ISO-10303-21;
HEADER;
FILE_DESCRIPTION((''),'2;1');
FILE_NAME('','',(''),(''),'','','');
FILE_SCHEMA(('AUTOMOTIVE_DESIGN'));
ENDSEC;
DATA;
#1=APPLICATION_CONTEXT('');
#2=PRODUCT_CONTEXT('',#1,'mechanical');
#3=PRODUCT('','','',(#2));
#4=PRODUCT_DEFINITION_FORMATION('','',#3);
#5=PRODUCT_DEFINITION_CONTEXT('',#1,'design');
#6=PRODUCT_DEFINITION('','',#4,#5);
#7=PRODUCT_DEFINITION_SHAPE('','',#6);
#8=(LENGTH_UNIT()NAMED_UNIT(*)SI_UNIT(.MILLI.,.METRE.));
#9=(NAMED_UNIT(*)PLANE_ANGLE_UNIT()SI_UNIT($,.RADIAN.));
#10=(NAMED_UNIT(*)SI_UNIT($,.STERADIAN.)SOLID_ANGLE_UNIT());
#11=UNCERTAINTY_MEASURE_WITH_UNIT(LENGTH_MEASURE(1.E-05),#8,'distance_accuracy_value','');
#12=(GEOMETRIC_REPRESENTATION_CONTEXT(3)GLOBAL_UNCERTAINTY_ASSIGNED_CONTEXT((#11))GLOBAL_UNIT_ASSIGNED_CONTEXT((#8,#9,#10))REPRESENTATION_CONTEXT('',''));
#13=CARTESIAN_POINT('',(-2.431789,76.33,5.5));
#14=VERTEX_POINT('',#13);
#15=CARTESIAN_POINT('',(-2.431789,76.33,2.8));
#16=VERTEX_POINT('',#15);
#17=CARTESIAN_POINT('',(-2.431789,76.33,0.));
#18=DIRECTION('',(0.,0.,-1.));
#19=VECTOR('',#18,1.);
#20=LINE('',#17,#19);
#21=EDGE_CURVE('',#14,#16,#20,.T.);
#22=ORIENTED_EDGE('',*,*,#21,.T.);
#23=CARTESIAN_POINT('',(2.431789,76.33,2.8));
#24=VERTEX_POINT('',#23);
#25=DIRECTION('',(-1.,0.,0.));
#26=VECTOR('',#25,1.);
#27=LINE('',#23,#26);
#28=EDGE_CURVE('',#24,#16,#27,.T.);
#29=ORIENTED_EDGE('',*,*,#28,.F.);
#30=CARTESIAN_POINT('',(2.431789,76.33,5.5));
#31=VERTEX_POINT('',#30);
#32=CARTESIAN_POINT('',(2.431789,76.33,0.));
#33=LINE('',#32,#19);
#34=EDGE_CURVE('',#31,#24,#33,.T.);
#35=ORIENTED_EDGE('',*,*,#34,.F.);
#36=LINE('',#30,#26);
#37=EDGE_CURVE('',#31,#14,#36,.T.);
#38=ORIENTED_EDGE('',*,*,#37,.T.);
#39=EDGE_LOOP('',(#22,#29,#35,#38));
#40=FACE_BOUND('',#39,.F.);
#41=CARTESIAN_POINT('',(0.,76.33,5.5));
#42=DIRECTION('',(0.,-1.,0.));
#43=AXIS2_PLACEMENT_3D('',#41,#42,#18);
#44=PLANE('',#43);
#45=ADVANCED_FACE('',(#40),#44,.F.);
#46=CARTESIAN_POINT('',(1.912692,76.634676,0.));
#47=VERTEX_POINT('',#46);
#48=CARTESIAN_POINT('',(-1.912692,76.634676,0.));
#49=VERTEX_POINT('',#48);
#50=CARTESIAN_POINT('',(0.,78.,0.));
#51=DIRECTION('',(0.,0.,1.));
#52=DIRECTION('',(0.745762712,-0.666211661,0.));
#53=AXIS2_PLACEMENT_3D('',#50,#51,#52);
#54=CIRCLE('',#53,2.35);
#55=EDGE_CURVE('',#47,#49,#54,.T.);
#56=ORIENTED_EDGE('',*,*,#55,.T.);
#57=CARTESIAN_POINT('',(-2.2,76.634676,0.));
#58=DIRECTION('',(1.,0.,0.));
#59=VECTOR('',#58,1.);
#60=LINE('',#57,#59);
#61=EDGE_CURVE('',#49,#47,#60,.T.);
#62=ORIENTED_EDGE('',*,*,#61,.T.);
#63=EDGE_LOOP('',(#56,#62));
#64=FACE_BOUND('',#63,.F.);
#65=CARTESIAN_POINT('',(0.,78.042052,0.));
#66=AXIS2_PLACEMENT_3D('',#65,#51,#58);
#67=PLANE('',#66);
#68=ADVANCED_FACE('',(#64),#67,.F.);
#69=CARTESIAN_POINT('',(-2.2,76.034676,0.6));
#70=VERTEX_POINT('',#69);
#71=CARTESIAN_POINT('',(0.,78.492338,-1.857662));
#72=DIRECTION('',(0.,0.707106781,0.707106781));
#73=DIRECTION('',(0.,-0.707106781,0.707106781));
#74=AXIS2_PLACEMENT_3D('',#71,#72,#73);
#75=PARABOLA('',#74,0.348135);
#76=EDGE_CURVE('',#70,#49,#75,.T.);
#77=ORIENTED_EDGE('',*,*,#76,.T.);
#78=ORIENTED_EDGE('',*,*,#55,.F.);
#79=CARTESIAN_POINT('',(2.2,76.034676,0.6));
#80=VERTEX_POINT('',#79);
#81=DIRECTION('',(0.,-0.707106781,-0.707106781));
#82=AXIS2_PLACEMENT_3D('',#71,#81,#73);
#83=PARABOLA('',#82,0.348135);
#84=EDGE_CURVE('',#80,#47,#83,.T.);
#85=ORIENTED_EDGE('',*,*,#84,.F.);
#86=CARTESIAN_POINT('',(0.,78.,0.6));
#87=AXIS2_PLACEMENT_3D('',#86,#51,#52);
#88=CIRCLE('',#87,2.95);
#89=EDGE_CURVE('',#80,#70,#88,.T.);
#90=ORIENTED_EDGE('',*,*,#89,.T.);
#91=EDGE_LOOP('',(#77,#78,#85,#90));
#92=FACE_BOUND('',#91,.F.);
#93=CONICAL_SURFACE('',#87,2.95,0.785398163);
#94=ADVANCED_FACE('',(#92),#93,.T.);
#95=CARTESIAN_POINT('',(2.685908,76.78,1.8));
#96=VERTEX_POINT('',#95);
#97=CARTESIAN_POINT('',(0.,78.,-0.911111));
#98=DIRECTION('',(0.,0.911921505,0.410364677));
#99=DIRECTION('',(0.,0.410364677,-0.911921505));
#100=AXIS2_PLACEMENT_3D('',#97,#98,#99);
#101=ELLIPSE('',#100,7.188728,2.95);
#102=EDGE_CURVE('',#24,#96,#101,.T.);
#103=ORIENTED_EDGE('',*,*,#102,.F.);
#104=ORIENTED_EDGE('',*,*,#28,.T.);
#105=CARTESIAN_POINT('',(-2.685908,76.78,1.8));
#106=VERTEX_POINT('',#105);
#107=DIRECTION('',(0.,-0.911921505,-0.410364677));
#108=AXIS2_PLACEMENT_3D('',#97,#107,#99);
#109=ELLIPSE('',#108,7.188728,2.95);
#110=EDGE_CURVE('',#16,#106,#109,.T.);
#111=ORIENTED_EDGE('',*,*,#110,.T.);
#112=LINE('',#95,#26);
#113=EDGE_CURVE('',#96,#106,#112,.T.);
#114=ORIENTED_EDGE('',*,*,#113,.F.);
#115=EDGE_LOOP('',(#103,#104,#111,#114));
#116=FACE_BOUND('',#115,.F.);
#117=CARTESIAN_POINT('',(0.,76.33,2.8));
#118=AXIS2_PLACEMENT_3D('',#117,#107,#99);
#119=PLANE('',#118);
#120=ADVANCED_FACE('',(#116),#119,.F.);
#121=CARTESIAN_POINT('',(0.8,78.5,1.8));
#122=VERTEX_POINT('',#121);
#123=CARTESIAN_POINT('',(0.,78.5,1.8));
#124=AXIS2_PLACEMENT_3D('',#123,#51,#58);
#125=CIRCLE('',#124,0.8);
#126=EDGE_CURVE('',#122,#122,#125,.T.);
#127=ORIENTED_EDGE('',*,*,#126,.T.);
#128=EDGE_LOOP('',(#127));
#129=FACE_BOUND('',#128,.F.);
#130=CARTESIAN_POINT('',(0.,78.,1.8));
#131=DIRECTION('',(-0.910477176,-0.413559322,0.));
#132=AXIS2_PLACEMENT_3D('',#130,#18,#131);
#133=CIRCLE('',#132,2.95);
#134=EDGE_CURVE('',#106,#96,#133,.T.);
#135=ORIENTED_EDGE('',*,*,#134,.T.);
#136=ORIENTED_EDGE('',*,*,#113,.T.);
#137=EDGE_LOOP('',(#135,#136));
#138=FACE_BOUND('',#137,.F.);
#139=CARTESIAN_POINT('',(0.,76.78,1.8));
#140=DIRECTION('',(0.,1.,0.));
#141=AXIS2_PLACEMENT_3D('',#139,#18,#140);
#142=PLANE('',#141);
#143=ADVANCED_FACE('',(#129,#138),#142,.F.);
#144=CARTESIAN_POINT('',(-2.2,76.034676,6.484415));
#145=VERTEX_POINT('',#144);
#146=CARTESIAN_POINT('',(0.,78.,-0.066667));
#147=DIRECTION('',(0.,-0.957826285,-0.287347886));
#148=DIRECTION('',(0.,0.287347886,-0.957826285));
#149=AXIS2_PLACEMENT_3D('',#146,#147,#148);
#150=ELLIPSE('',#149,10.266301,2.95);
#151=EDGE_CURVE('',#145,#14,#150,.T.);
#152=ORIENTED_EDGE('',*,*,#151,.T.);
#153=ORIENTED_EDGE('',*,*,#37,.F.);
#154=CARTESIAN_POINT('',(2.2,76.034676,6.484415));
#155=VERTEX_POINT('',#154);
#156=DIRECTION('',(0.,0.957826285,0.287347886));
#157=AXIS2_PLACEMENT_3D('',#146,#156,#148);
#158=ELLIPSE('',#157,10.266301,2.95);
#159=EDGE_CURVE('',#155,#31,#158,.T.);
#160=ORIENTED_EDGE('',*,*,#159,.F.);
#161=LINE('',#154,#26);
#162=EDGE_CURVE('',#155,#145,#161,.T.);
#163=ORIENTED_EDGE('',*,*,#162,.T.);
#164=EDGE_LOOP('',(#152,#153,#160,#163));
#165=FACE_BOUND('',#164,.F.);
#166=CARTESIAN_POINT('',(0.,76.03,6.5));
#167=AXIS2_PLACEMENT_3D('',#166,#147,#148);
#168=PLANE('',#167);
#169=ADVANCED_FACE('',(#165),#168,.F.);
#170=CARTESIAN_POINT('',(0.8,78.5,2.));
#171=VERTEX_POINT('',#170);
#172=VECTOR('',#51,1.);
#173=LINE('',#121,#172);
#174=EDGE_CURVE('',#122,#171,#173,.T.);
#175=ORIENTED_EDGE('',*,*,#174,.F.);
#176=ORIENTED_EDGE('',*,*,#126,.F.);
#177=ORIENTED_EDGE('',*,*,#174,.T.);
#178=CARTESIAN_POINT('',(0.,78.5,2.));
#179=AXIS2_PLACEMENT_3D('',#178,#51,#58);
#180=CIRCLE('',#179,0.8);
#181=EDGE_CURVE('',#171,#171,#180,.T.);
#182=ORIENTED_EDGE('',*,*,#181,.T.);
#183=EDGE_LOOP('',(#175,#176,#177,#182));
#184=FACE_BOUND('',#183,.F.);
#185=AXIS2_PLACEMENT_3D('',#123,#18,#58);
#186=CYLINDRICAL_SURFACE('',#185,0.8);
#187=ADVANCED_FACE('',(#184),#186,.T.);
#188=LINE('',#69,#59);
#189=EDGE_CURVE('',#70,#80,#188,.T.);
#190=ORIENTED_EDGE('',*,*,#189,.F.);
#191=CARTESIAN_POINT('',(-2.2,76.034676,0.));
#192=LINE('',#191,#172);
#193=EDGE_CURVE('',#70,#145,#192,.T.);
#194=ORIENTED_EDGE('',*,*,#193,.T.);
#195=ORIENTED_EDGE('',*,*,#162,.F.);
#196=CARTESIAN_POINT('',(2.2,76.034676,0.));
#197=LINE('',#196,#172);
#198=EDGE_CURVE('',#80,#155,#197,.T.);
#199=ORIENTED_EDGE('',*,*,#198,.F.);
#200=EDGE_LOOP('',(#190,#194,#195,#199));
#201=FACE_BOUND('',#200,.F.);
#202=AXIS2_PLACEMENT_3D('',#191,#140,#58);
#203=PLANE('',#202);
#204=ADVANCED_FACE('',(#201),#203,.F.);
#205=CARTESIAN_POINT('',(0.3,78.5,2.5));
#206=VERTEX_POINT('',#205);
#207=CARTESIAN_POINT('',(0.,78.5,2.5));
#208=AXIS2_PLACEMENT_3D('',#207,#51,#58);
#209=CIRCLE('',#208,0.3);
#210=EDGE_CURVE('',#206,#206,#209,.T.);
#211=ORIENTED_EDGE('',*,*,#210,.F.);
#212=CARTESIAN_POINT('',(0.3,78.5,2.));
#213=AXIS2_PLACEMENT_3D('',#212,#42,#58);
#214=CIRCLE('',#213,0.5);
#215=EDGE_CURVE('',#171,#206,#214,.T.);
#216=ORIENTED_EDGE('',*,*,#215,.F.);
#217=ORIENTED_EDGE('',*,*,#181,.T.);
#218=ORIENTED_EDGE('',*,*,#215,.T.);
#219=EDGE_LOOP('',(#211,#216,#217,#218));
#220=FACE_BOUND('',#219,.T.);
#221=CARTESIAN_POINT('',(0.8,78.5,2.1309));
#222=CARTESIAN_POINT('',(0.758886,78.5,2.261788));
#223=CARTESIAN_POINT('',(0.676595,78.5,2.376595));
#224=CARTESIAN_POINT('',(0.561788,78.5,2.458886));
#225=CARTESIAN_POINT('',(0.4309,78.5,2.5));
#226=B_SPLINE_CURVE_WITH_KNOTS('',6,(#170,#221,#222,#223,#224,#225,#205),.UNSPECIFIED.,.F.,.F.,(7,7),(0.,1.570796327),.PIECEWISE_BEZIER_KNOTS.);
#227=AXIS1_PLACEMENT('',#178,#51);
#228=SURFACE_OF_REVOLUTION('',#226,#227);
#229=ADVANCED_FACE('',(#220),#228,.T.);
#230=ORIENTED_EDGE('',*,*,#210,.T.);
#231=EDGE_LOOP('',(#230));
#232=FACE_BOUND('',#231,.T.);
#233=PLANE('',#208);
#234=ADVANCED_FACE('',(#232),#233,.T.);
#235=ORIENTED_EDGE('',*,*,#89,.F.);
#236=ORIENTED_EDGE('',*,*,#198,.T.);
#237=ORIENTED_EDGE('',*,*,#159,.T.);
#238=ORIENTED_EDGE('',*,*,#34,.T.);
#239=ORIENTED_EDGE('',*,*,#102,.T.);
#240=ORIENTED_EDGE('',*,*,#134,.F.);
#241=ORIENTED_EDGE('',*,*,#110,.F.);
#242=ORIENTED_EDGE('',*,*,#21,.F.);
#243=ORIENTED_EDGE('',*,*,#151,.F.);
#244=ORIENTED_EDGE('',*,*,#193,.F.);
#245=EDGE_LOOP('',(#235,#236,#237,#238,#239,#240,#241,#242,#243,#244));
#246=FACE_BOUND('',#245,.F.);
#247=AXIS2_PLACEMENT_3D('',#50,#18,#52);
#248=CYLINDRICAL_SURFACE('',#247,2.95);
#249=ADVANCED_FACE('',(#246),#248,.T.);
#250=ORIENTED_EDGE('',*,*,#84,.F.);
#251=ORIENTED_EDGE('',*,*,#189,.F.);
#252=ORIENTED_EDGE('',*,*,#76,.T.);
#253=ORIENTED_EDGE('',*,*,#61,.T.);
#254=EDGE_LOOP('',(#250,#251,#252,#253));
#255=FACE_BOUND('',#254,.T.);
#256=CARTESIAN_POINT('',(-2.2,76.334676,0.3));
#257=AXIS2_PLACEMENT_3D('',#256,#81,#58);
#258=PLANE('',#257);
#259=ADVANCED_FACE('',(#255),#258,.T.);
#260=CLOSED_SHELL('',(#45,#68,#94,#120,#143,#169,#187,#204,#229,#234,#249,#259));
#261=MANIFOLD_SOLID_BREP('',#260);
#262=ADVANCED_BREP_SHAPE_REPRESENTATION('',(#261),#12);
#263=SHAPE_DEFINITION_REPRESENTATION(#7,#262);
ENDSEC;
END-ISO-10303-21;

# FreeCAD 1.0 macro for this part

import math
import FreeCAD as App
import Part
import Sketcher


def edges_at(feature, points):
    """Names of the edges that pass closest to the given points."""
    edges = feature.Shape.Edges
    near = lambda p: min(range(len(edges)), key=lambda i: edges[i].distToShape(Part.Vertex(*p))[0])
    return sorted({f"Edge{near(p) + 1}" for p in points})

doc = App.newDocument("Part")
body = doc.addObject("PartDesign::Body", "Body")

sketch1 = body.newObject("Sketcher::SketchObject", "Sketch")
sketch1.AttachmentSupport = (doc.getObject("XY_Plane"), [""])
sketch1.MapMode = "FlatFace"
sketch1.addGeometry([
    Part.ArcOfCircle(Part.Circle(App.Vector(0, 0, 0), App.Vector(0, 0, 1), 3), math.radians(-42), math.radians(222)),
    Part.LineSegment(App.Vector(-2.2, -2, 0), App.Vector(2.2, -2, 0)),
], False)
sketch1.addConstraint([
    Sketcher.Constraint("Coincident", 0, 1, 1, 2),
    Sketcher.Constraint("Coincident", 1, 1, 0, 2),
    Sketcher.Constraint("Horizontal", 1),
    Sketcher.Constraint("Coincident", 0, 3, -1, 1),
    Sketcher.Constraint("Radius", 0, 2.95),
    Sketcher.Constraint("DistanceX", 1, 1, 1, 2, 4.4),
])
pad1 = body.newObject("PartDesign::Pad", "Pad")
pad1.Profile = sketch1
pad1.Length = 6.5

sketch2 = body.newObject("Sketcher::SketchObject", "Sketch001")
sketch2.AttachmentSupport = (doc.getObject("YZ_Plane"), [""])
sketch2.MapMode = "FlatFace"
sketch2.addGeometry([
    Part.LineSegment(App.Vector(-2, 6.5, 0), App.Vector(-1.7, 5.5, 0)),
    Part.LineSegment(App.Vector(-1.7, 5.5, 0), App.Vector(-1.7, 2.8, 0)),
    Part.LineSegment(App.Vector(-1.7, 2.8, 0), App.Vector(-1.2, 1.8, 0)),
    Part.LineSegment(App.Vector(-1.2, 1.8, 0), App.Vector(4, 1.8, 0)),
    Part.LineSegment(App.Vector(4, 1.8, 0), App.Vector(4, 6.5, 0)),
    Part.LineSegment(App.Vector(4, 6.5, 0), App.Vector(-2, 6.5, 0)),
], False)
sketch2.addConstraint([
    Sketcher.Constraint("Coincident", 0, 2, 1, 1),
    Sketcher.Constraint("Coincident", 1, 2, 2, 1),
    Sketcher.Constraint("Coincident", 2, 2, 3, 1),
    Sketcher.Constraint("Coincident", 3, 2, 4, 1),
    Sketcher.Constraint("Coincident", 4, 2, 5, 1),
    Sketcher.Constraint("Coincident", 5, 2, 0, 1),
    Sketcher.Constraint("Vertical", 1),
    Sketcher.Constraint("Horizontal", 3),
    Sketcher.Constraint("Vertical", 4),
    Sketcher.Constraint("Horizontal", 5),
    Sketcher.Constraint("DistanceY", 1, 2, 1, 1, 2.7),
    Sketcher.Constraint("DistanceY", 4, 1, 4, 2, 4.7),
    Sketcher.Constraint("DistanceX", -1, 1, 3, 2, 4.0),
    Sketcher.Constraint("DistanceY", 2, 2, 1, 2, 1.0),
    Sketcher.Constraint("DistanceX", 3, 1, 3, 2, 5.22),
    Sketcher.Constraint("DistanceX", 5, 2, 5, 1, 5.97),
    Sketcher.Constraint("DistanceY", -1, 1, 0, 2, 5.5),
    Sketcher.Constraint("DistanceX", 5, 2, 0, 2, 0.3),
])
pocket1 = body.newObject("PartDesign::Pocket", "Pocket")
pocket1.Profile = sketch2
pocket1.Type = "ThroughAll"
pocket1.Midplane = True

sketch3 = body.newObject("Sketcher::SketchObject", "Sketch002")
sketch3.AttachmentSupport = (doc.getObject("XY_Plane"), [""])
sketch3.MapMode = "FlatFace"
sketch3.AttachmentOffset = App.Placement(App.Vector(0, 0, 1.8), App.Rotation())
sketch3.addGeometry(Part.Circle(App.Vector(0, 0.5, 0), App.Vector(0, 0, 1), 0.8), False)
sketch3.addConstraint([
    Sketcher.Constraint("PointOnObject", 0, 3, -2),
    Sketcher.Constraint("Diameter", 0, 1.6),
    Sketcher.Constraint("DistanceY", -1, 1, 0, 3, 0.5),
])
pad2 = body.newObject("PartDesign::Pad", "Pad001")
pad2.Profile = sketch3
pad2.Length = 0.7
doc.recompute()

fillet = body.newObject("PartDesign::Fillet", "Fillet")
fillet.Base = (pad2, edges_at(pad2, [(-0.8, 0.5, 2.5)]))
fillet.Radius = 0.5
doc.recompute()

chamfer = body.newObject("PartDesign::Chamfer", "Chamfer")
chamfer.Base = (fillet, edges_at(fillet, [(0, 2.95, 0), (0, -1.965, 0)]))
chamfer.Size = 0.6
body2 = doc.addObject("PartDesign::Body", "Body001")
doc.recompute()

body.Placement = App.Placement(App.Vector(0, 78, 0), App.Rotation(App.Vector(0, 0, 1), 0))
boolean = body2.newObject("PartDesign::Boolean", "Boolean")
boolean.Type = "Fuse"
boolean.addObjects([body])

doc.recompute()
